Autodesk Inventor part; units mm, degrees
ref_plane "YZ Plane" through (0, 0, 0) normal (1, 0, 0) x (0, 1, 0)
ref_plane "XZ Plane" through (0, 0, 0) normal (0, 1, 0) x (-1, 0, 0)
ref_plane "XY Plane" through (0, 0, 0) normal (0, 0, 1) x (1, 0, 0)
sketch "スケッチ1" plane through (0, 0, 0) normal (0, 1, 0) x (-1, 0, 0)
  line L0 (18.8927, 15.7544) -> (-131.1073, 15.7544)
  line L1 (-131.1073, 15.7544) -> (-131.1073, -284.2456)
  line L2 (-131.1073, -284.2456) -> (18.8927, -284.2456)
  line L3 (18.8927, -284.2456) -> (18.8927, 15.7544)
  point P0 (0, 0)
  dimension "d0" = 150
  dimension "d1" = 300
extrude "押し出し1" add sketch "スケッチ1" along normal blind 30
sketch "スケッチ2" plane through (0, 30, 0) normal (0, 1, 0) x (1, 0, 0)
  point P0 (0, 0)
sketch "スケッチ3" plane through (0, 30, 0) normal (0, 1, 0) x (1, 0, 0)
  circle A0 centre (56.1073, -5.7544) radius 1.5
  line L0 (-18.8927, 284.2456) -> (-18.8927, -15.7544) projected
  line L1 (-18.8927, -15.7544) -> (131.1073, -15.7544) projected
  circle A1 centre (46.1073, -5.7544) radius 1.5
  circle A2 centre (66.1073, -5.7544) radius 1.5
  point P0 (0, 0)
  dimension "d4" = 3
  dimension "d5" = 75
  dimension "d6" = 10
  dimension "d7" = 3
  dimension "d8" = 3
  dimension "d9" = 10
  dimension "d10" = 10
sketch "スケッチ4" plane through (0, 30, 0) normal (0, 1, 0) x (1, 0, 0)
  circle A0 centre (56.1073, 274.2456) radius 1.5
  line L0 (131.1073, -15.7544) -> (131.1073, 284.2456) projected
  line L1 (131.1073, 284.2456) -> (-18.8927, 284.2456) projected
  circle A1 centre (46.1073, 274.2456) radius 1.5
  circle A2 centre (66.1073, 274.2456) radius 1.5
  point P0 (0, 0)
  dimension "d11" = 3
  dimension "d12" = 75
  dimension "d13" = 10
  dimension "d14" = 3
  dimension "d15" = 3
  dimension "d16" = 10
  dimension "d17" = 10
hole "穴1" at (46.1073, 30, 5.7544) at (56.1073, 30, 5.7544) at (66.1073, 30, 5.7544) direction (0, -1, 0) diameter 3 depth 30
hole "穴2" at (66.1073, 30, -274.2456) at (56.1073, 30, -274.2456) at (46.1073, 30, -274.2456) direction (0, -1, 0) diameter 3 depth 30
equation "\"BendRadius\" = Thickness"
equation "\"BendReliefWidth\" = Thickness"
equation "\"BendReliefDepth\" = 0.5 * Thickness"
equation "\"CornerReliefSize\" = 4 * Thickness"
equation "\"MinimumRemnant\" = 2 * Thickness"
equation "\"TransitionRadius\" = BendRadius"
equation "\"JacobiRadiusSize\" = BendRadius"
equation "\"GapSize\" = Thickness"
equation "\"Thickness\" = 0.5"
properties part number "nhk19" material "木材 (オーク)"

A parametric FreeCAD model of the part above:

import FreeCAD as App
import Part
import Sketcher

V = App.Vector
Q = App.Units.Quantity


def add_polygon(sketch, points):
    """Adds a closed chain of lines whose ends are joined by coincident constraints."""
    first, n = sketch.GeometryCount, len(points)
    for a, b in zip(points, points[1:] + points[:1]):
        sketch.addGeometry(Part.LineSegment(App.Vector(*a, 0), App.Vector(*b, 0)), False)
    for i in range(n):
        sketch.addConstraint(Sketcher.Constraint("Coincident", first + i, 2, first + (i + 1) % n, 1))

doc = App.newDocument("Part")
body = doc.addObject("PartDesign::Body", "Body")

sketch1 = body.newObject("Sketcher::SketchObject", "Sketch")
sketch1.AttachmentSupport = (doc.getObject("XZ_Plane"), [""])
sketch1.MapMode = "FlatFace"
add_polygon(sketch1, [(-18.8927, -284.2456), (-18.8927, 15.7544), (131.1073, 15.7544), (131.1073, -284.2456)])
sketch1.addConstraint([
    Sketcher.Constraint("Vertical", 0),
    Sketcher.Constraint("Horizontal", 1),
    Sketcher.Constraint("Vertical", 2),
    Sketcher.Constraint("Horizontal", 3),
    Sketcher.Constraint("DistanceX", 1, 1, 1, 2, Q("150 mm")),
    Sketcher.Constraint("DistanceY", 0, 1, 0, 2, Q("300 mm")),
    Sketcher.Constraint("DistanceX", 0, 2, -1, 1, Q("18.8927 mm")),
    Sketcher.Constraint("DistanceY", -1, 1, 0, 2, Q("15.7544 mm")),
])
pad1 = body.newObject("PartDesign::Pad", "Pad")
pad1.Profile = sketch1
pad1.Length = 30
pad1.Reversed = True

sketch2 = body.newObject("Sketcher::SketchObject", "Sketch001")
sketch2.AttachmentSupport = (doc.getObject("XZ_Plane"), [""])
sketch2.MapMode = "FlatFace"
sketch2.AttachmentOffset = App.Placement(V(0, 0, -30), App.Rotation())
sketch2.addGeometry([
    Part.Circle(V(46.1073, 5.7544, 0), V(0, 0, 1), 1.5),
    Part.Circle(V(56.1073, 5.7544, 0), V(0, 0, 1), 1.5),
    Part.Circle(V(66.1073, 5.7544, 0), V(0, 0, 1), 1.5),
], False)
sketch2.addConstraint([
    Sketcher.Constraint("Equal", 0, 1),
    Sketcher.Constraint("Equal", 1, 2),
    Sketcher.Constraint("Horizontal", 0, 3, 1, 3),
    Sketcher.Constraint("Horizontal", 1, 3, 2, 3),
    Sketcher.Constraint("Diameter", 0, Q("3 mm")),
    Sketcher.Constraint("DistanceX", 0, 3, 1, 3, Q("10 mm")),
    Sketcher.Constraint("DistanceX", 1, 3, 2, 3, Q("10 mm")),
    Sketcher.Constraint("DistanceX", -1, 1, 0, 3, Q("46.1073 mm")),
    Sketcher.Constraint("DistanceY", -1, 1, 0, 3, Q("5.7544 mm")),
])
doc.recompute()
hole = body.newObject("PartDesign::Hole", "Hole")
hole.Profile = sketch2
hole.ThreadType = "None"
hole.Diameter = 3
hole.DepthType = "Dimension"
hole.Depth = 30
hole.DrillPoint = "Flat"
hole.Reversed = True

sketch3 = body.newObject("Sketcher::SketchObject", "Sketch002")
sketch3.AttachmentSupport = (doc.getObject("XZ_Plane"), [""])
sketch3.MapMode = "FlatFace"
sketch3.AttachmentOffset = App.Placement(V(0, 0, -30), App.Rotation())
sketch3.addGeometry([
    Part.Circle(V(66.1073, -274.2456, 0), V(0, 0, 1), 1.5),
    Part.Circle(V(56.1073, -274.2456, 0), V(0, 0, 1), 1.5),
    Part.Circle(V(46.1073, -274.2456, 0), V(0, 0, 1), 1.5),
], False)
sketch3.addConstraint([
    Sketcher.Constraint("Equal", 0, 1),
    Sketcher.Constraint("Equal", 1, 2),
    Sketcher.Constraint("Horizontal", 0, 3, 1, 3),
    Sketcher.Constraint("Horizontal", 1, 3, 2, 3),
    Sketcher.Constraint("Diameter", 0, Q("3 mm")),
    Sketcher.Constraint("DistanceX", 1, 3, 0, 3, Q("10 mm")),
    Sketcher.Constraint("DistanceX", 2, 3, 1, 3, Q("10 mm")),
    Sketcher.Constraint("DistanceX", -1, 1, 0, 3, Q("66.1073 mm")),
    Sketcher.Constraint("DistanceY", 0, 3, -1, 1, Q("274.2456 mm")),
])
doc.recompute()
hole2 = body.newObject("PartDesign::Hole", "Hole001")
hole2.Profile = sketch3
hole2.ThreadType = "None"
hole2.Diameter = 3
hole2.DepthType = "Dimension"
hole2.Depth = 30
hole2.DrillPoint = "Flat"
hole2.Reversed = True

doc.recompute()
